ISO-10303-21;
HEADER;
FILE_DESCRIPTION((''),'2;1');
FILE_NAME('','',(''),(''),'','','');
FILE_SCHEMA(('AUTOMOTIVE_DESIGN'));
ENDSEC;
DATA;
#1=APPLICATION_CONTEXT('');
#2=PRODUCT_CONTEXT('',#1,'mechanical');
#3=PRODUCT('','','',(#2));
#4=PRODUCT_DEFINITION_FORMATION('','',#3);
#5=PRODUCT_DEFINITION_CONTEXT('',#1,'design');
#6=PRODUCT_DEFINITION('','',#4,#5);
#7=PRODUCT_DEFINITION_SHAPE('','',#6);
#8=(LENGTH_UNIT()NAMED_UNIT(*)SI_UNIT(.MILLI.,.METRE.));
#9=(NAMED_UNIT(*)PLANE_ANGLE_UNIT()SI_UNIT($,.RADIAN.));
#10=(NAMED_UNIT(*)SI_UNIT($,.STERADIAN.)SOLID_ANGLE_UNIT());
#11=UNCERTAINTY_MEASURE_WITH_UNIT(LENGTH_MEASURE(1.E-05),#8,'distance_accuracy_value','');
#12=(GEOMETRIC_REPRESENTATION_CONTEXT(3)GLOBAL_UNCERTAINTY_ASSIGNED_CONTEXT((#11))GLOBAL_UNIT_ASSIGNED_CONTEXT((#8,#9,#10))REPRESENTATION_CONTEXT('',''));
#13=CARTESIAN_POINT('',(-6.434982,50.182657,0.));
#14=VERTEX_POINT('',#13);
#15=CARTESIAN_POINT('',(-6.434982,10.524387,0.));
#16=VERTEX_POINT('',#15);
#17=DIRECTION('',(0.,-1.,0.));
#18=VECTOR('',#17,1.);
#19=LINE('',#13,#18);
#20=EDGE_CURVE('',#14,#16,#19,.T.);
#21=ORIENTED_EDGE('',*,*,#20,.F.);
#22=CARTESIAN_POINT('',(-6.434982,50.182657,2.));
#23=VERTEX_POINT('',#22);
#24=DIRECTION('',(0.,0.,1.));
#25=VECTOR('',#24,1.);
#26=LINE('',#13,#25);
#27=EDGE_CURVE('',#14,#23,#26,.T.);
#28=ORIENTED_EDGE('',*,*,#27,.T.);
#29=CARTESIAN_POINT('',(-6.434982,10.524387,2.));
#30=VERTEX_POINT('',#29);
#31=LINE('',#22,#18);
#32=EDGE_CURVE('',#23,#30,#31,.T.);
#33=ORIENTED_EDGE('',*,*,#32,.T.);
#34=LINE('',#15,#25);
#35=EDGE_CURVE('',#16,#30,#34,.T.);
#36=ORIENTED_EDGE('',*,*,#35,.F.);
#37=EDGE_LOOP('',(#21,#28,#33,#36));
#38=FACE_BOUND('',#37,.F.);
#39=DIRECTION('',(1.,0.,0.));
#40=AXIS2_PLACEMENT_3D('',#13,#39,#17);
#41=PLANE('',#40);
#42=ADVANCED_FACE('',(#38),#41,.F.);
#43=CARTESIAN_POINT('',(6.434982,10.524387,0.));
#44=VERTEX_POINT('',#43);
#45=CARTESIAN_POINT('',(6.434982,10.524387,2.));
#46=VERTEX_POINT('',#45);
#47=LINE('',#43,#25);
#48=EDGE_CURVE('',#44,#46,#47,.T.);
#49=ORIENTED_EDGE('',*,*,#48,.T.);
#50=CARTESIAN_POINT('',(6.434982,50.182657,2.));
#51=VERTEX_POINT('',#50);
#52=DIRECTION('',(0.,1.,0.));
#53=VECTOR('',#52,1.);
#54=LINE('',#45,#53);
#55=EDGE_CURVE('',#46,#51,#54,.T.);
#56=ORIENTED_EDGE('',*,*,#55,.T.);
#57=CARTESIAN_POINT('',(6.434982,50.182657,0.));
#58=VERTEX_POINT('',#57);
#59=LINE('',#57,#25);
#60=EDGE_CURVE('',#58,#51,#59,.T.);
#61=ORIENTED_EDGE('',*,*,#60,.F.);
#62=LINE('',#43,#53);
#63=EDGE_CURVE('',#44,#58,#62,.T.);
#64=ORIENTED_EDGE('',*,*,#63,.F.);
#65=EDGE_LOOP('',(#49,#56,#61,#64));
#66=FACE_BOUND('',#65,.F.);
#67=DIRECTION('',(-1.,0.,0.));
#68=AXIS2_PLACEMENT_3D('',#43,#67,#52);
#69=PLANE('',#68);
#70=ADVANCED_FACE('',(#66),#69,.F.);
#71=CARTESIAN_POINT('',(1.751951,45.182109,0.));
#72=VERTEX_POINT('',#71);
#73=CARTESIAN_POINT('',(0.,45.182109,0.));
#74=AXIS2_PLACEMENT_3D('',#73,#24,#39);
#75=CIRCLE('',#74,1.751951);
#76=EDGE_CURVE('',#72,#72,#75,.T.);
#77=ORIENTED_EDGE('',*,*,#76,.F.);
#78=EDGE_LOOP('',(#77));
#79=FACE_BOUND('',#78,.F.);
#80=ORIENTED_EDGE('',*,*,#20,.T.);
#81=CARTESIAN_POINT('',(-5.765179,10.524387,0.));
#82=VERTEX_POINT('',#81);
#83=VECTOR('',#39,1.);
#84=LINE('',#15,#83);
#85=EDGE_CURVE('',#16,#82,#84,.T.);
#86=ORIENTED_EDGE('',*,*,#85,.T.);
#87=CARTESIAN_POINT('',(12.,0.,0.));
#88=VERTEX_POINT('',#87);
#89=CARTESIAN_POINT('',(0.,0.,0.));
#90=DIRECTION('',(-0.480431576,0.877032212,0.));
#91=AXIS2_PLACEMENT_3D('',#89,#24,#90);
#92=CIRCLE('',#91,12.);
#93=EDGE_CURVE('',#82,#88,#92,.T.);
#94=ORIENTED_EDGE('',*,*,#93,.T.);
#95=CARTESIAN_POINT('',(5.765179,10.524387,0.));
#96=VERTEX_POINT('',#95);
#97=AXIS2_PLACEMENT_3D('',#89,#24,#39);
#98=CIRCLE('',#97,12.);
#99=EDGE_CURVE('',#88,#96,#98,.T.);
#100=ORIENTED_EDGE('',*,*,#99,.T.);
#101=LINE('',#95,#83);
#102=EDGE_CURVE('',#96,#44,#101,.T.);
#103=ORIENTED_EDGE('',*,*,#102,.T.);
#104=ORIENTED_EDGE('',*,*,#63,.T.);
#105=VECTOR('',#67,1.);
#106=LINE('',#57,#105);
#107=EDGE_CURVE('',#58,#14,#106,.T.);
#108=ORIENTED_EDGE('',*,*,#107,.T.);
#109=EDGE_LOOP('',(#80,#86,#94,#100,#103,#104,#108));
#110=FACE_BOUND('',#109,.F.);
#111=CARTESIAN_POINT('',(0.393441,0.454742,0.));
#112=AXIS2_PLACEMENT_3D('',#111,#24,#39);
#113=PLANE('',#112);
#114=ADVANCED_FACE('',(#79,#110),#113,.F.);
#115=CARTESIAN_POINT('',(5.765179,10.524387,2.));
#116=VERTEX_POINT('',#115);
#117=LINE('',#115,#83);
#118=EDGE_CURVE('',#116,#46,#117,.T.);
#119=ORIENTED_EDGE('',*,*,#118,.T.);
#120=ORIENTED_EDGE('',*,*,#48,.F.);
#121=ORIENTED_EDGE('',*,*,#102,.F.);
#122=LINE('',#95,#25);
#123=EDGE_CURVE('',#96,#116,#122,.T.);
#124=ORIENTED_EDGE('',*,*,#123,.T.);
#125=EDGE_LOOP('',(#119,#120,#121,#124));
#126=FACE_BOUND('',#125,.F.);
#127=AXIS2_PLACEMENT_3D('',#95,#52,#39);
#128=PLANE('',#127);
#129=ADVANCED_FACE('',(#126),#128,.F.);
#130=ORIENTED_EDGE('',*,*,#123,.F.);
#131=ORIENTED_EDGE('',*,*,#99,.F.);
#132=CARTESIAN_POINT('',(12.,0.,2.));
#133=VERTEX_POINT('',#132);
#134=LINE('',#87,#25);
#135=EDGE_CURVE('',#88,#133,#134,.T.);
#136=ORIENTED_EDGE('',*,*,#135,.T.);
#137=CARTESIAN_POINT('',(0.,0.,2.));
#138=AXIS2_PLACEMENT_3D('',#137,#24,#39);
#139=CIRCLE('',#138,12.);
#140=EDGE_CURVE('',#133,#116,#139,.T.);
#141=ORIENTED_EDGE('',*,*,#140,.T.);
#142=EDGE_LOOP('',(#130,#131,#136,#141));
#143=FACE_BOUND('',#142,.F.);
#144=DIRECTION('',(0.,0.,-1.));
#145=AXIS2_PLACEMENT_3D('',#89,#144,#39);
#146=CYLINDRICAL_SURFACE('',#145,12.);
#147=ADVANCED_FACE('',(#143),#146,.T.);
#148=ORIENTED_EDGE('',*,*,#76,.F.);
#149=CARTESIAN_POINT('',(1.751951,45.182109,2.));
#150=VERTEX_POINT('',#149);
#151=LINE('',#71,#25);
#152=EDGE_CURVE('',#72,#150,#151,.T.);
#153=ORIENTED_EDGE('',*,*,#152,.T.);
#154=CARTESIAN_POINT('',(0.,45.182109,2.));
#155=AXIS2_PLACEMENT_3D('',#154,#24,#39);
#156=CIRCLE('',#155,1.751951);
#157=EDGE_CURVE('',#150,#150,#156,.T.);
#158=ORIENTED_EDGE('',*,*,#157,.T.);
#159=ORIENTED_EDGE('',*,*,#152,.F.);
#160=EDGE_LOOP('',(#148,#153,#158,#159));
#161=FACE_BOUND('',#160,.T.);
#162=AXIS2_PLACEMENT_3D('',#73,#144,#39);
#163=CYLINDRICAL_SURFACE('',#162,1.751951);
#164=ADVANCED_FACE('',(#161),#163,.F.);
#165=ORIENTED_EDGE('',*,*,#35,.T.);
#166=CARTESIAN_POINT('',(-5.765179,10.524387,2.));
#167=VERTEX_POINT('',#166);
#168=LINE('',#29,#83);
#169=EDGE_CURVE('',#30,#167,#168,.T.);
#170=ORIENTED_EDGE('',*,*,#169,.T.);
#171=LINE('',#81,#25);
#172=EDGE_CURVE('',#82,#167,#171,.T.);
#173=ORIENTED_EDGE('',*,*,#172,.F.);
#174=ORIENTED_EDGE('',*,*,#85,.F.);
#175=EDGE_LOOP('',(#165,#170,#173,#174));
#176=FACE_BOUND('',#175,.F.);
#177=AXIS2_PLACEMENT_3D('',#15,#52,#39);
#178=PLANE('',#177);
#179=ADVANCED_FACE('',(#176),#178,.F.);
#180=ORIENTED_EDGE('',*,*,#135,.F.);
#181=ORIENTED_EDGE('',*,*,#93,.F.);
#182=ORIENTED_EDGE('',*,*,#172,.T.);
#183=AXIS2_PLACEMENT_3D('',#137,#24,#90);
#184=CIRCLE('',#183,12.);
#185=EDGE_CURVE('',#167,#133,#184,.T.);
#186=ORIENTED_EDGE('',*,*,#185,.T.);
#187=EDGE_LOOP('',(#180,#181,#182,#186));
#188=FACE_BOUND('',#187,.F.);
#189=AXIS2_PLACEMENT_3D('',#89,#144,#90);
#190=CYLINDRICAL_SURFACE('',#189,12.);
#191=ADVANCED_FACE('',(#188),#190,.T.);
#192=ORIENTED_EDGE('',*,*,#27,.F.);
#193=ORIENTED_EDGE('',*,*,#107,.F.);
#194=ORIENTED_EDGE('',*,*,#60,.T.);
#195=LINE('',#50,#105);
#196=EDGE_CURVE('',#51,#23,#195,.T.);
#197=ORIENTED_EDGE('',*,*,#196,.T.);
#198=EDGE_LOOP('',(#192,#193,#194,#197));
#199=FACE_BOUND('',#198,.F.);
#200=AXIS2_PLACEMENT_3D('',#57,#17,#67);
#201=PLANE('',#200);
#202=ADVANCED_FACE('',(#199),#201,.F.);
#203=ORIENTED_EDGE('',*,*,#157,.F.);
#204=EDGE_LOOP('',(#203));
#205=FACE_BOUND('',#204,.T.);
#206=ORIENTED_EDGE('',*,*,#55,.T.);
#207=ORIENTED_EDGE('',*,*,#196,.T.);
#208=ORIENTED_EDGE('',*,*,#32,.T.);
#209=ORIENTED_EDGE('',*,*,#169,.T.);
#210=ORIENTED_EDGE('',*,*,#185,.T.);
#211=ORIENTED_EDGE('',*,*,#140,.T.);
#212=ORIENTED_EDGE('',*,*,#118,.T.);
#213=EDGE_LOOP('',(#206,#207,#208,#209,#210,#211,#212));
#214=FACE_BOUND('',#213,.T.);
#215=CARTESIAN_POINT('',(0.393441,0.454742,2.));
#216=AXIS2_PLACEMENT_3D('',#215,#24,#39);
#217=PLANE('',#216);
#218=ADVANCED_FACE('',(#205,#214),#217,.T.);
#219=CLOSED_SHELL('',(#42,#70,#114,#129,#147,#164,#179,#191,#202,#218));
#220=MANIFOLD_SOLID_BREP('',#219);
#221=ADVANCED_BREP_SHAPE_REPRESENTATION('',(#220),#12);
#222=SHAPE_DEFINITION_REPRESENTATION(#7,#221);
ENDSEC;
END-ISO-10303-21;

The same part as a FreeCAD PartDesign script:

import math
import FreeCAD as App
import Part
import Sketcher
from FreeCAD import Vector
Q = App.Units.Quantity

doc = App.newDocument("Part")
body = doc.addObject("PartDesign::Body", "Body")

sketch1 = body.newObject("Sketcher::SketchObject", "Sketch")
sketch1.AttachmentSupport = (doc.getObject("XY_Plane"), [""])
sketch1.MapMode = "FlatFace"
sketch1.addGeometry(Part.ArcOfCircle(Part.Circle(Vector(0, 0, 0), Vector(0, 0, 1), 12), math.radians(118.713593), math.radians(360)), False)
sketch1.addGeometry(Part.ArcOfCircle(Part.Circle(Vector(0, 0, 0), Vector(0, 0, 1), 12), math.radians(0), math.radians(61.286407)), False)
sketch1.addGeometry(Part.LineSegment(Vector(5.765179, 10.524387, 0), Vector(6.434982, 10.524387, 0)), False)
sketch1.addGeometry(Part.LineSegment(Vector(6.434982, 10.524387, 0), Vector(6.434982, 50.182657, 0)), False)
sketch1.addGeometry(Part.LineSegment(Vector(6.434982, 50.182657, 0), Vector(-6.434982, 50.182657, 0)), False)
sketch1.addGeometry(Part.LineSegment(Vector(-6.434982, 50.182657, 0), Vector(-6.434982, 10.524387, 0)), False)
sketch1.addGeometry(Part.LineSegment(Vector(-6.434982, 10.524387, 0), Vector(-5.765179, 10.524387, 0)), False)
sketch1.addGeometry(Part.Circle(Vector(0, 45.182109, 0), Vector(0, 0, 1), 1.751951), False)
sketch1.addConstraint(Sketcher.Constraint("Tangent", 0, 2, 1, 1))
sketch1.addConstraint(Sketcher.Constraint("Coincident", 1, 2, 2, 1))
sketch1.addConstraint(Sketcher.Constraint("Coincident", 2, 2, 3, 1))
sketch1.addConstraint(Sketcher.Constraint("Coincident", 3, 2, 4, 1))
sketch1.addConstraint(Sketcher.Constraint("Coincident", 4, 2, 5, 1))
sketch1.addConstraint(Sketcher.Constraint("Coincident", 5, 2, 6, 1))
sketch1.addConstraint(Sketcher.Constraint("Coincident", 6, 2, 0, 1))
sketch1.addConstraint(Sketcher.Constraint("Horizontal", 2))
sketch1.addConstraint(Sketcher.Constraint("Vertical", 3))
sketch1.addConstraint(Sketcher.Constraint("Horizontal", 4))
sketch1.addConstraint(Sketcher.Constraint("Vertical", 5))
sketch1.addConstraint(Sketcher.Constraint("Horizontal", 6))
sketch1.addConstraint(Sketcher.Constraint("Coincident", 0, 3, -1, 1))
sketch1.addConstraint(Sketcher.Constraint("Equal", 0, 1))
sketch1.addConstraint(Sketcher.Constraint("Symmetric", 2, 2, 5, 2, -2))
sketch1.addConstraint(Sketcher.Constraint("PointOnObject", 7, 3, -2))
sketch1.addConstraint(Sketcher.Constraint("PointOnObject", 0, 2, -1))
sketch1.addConstraint(Sketcher.Constraint("Radius", 0, Q("12 mm")))
sketch1.addConstraint(Sketcher.Constraint("Diameter", 7, Q("3.503902 mm")))
sketch1.addConstraint(Sketcher.Constraint("DistanceY", 3, 1, 3, 2, Q("39.658271 mm")))
sketch1.addConstraint(Sketcher.Constraint("DistanceX", 2, 1, 2, 2, Q("0.669803 mm")))
sketch1.addConstraint(Sketcher.Constraint("DistanceX", 4, 2, 4, 1, Q("12.869965 mm")))
sketch1.addConstraint(Sketcher.Constraint("DistanceY", -1, 1, 7, 3, Q("45.182109 mm")))
pad1 = body.newObject("PartDesign::Pad", "Pad")
pad1.Profile = sketch1
pad1.Length = 2

doc.recompute()
